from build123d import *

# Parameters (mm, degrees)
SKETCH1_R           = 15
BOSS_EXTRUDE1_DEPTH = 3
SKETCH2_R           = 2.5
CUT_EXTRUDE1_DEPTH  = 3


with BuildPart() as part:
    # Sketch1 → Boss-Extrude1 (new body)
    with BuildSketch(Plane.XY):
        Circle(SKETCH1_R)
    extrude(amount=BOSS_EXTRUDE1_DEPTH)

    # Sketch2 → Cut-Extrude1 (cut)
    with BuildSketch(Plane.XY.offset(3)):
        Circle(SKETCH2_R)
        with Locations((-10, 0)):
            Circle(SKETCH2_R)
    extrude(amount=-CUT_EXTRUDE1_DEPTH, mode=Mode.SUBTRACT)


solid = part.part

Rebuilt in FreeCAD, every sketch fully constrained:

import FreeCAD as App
import Part
import Sketcher
from FreeCAD import Vector
Q = App.Units.Quantity

doc = App.newDocument("Part")
body = doc.addObject("PartDesign::Body", "Body")

# Sketch on XY plane
sketch1 = body.newObject("Sketcher::SketchObject", "Sketch")
sketch1.AttachmentSupport = (doc.getObject("XY_Plane"), [""])
sketch1.MapMode = "FlatFace"
sketch1.addGeometry(Part.Circle(Vector(0, 0, 0), Vector(0, 0, 1), 15), False)
sketch1.addConstraint([
    Sketcher.Constraint("Coincident", 0, 3, -1, 1),
    Sketcher.Constraint("Diameter", 0, Q("30 mm")),
])
pad1 = body.newObject("PartDesign::Pad", "Pad")
pad1.Profile = sketch1
pad1.Length = 3

# Sketch on XY plane
sketch2 = body.newObject("Sketcher::SketchObject", "Sketch001")
sketch2.AttachmentSupport = (doc.getObject("XY_Plane"), [""])
sketch2.MapMode = "FlatFace"
sketch2.AttachmentOffset = App.Placement(Vector(0, 0, 3), App.Rotation())
sketch2.addGeometry([
    Part.Circle(Vector(0, 0, 0), Vector(0, 0, 1), 2.5),
    Part.Circle(Vector(-10, 0, 0), Vector(0, 0, 1), 2.5),
], False)
sketch2.addConstraint([
    Sketcher.Constraint("Coincident", 0, 3, -1, 1),
    Sketcher.Constraint("Equal", 0, 1),
    Sketcher.Constraint("PointOnObject", 1, 3, -1),
    Sketcher.Constraint("Diameter", 0, Q("5 mm")),
    Sketcher.Constraint("DistanceX", 1, 3, -1, 1, Q("10 mm")),
])
pocket1 = body.newObject("PartDesign::Pocket", "Pocket")
pocket1.Profile = sketch2
pocket1.Length = 3

doc.recompute()
